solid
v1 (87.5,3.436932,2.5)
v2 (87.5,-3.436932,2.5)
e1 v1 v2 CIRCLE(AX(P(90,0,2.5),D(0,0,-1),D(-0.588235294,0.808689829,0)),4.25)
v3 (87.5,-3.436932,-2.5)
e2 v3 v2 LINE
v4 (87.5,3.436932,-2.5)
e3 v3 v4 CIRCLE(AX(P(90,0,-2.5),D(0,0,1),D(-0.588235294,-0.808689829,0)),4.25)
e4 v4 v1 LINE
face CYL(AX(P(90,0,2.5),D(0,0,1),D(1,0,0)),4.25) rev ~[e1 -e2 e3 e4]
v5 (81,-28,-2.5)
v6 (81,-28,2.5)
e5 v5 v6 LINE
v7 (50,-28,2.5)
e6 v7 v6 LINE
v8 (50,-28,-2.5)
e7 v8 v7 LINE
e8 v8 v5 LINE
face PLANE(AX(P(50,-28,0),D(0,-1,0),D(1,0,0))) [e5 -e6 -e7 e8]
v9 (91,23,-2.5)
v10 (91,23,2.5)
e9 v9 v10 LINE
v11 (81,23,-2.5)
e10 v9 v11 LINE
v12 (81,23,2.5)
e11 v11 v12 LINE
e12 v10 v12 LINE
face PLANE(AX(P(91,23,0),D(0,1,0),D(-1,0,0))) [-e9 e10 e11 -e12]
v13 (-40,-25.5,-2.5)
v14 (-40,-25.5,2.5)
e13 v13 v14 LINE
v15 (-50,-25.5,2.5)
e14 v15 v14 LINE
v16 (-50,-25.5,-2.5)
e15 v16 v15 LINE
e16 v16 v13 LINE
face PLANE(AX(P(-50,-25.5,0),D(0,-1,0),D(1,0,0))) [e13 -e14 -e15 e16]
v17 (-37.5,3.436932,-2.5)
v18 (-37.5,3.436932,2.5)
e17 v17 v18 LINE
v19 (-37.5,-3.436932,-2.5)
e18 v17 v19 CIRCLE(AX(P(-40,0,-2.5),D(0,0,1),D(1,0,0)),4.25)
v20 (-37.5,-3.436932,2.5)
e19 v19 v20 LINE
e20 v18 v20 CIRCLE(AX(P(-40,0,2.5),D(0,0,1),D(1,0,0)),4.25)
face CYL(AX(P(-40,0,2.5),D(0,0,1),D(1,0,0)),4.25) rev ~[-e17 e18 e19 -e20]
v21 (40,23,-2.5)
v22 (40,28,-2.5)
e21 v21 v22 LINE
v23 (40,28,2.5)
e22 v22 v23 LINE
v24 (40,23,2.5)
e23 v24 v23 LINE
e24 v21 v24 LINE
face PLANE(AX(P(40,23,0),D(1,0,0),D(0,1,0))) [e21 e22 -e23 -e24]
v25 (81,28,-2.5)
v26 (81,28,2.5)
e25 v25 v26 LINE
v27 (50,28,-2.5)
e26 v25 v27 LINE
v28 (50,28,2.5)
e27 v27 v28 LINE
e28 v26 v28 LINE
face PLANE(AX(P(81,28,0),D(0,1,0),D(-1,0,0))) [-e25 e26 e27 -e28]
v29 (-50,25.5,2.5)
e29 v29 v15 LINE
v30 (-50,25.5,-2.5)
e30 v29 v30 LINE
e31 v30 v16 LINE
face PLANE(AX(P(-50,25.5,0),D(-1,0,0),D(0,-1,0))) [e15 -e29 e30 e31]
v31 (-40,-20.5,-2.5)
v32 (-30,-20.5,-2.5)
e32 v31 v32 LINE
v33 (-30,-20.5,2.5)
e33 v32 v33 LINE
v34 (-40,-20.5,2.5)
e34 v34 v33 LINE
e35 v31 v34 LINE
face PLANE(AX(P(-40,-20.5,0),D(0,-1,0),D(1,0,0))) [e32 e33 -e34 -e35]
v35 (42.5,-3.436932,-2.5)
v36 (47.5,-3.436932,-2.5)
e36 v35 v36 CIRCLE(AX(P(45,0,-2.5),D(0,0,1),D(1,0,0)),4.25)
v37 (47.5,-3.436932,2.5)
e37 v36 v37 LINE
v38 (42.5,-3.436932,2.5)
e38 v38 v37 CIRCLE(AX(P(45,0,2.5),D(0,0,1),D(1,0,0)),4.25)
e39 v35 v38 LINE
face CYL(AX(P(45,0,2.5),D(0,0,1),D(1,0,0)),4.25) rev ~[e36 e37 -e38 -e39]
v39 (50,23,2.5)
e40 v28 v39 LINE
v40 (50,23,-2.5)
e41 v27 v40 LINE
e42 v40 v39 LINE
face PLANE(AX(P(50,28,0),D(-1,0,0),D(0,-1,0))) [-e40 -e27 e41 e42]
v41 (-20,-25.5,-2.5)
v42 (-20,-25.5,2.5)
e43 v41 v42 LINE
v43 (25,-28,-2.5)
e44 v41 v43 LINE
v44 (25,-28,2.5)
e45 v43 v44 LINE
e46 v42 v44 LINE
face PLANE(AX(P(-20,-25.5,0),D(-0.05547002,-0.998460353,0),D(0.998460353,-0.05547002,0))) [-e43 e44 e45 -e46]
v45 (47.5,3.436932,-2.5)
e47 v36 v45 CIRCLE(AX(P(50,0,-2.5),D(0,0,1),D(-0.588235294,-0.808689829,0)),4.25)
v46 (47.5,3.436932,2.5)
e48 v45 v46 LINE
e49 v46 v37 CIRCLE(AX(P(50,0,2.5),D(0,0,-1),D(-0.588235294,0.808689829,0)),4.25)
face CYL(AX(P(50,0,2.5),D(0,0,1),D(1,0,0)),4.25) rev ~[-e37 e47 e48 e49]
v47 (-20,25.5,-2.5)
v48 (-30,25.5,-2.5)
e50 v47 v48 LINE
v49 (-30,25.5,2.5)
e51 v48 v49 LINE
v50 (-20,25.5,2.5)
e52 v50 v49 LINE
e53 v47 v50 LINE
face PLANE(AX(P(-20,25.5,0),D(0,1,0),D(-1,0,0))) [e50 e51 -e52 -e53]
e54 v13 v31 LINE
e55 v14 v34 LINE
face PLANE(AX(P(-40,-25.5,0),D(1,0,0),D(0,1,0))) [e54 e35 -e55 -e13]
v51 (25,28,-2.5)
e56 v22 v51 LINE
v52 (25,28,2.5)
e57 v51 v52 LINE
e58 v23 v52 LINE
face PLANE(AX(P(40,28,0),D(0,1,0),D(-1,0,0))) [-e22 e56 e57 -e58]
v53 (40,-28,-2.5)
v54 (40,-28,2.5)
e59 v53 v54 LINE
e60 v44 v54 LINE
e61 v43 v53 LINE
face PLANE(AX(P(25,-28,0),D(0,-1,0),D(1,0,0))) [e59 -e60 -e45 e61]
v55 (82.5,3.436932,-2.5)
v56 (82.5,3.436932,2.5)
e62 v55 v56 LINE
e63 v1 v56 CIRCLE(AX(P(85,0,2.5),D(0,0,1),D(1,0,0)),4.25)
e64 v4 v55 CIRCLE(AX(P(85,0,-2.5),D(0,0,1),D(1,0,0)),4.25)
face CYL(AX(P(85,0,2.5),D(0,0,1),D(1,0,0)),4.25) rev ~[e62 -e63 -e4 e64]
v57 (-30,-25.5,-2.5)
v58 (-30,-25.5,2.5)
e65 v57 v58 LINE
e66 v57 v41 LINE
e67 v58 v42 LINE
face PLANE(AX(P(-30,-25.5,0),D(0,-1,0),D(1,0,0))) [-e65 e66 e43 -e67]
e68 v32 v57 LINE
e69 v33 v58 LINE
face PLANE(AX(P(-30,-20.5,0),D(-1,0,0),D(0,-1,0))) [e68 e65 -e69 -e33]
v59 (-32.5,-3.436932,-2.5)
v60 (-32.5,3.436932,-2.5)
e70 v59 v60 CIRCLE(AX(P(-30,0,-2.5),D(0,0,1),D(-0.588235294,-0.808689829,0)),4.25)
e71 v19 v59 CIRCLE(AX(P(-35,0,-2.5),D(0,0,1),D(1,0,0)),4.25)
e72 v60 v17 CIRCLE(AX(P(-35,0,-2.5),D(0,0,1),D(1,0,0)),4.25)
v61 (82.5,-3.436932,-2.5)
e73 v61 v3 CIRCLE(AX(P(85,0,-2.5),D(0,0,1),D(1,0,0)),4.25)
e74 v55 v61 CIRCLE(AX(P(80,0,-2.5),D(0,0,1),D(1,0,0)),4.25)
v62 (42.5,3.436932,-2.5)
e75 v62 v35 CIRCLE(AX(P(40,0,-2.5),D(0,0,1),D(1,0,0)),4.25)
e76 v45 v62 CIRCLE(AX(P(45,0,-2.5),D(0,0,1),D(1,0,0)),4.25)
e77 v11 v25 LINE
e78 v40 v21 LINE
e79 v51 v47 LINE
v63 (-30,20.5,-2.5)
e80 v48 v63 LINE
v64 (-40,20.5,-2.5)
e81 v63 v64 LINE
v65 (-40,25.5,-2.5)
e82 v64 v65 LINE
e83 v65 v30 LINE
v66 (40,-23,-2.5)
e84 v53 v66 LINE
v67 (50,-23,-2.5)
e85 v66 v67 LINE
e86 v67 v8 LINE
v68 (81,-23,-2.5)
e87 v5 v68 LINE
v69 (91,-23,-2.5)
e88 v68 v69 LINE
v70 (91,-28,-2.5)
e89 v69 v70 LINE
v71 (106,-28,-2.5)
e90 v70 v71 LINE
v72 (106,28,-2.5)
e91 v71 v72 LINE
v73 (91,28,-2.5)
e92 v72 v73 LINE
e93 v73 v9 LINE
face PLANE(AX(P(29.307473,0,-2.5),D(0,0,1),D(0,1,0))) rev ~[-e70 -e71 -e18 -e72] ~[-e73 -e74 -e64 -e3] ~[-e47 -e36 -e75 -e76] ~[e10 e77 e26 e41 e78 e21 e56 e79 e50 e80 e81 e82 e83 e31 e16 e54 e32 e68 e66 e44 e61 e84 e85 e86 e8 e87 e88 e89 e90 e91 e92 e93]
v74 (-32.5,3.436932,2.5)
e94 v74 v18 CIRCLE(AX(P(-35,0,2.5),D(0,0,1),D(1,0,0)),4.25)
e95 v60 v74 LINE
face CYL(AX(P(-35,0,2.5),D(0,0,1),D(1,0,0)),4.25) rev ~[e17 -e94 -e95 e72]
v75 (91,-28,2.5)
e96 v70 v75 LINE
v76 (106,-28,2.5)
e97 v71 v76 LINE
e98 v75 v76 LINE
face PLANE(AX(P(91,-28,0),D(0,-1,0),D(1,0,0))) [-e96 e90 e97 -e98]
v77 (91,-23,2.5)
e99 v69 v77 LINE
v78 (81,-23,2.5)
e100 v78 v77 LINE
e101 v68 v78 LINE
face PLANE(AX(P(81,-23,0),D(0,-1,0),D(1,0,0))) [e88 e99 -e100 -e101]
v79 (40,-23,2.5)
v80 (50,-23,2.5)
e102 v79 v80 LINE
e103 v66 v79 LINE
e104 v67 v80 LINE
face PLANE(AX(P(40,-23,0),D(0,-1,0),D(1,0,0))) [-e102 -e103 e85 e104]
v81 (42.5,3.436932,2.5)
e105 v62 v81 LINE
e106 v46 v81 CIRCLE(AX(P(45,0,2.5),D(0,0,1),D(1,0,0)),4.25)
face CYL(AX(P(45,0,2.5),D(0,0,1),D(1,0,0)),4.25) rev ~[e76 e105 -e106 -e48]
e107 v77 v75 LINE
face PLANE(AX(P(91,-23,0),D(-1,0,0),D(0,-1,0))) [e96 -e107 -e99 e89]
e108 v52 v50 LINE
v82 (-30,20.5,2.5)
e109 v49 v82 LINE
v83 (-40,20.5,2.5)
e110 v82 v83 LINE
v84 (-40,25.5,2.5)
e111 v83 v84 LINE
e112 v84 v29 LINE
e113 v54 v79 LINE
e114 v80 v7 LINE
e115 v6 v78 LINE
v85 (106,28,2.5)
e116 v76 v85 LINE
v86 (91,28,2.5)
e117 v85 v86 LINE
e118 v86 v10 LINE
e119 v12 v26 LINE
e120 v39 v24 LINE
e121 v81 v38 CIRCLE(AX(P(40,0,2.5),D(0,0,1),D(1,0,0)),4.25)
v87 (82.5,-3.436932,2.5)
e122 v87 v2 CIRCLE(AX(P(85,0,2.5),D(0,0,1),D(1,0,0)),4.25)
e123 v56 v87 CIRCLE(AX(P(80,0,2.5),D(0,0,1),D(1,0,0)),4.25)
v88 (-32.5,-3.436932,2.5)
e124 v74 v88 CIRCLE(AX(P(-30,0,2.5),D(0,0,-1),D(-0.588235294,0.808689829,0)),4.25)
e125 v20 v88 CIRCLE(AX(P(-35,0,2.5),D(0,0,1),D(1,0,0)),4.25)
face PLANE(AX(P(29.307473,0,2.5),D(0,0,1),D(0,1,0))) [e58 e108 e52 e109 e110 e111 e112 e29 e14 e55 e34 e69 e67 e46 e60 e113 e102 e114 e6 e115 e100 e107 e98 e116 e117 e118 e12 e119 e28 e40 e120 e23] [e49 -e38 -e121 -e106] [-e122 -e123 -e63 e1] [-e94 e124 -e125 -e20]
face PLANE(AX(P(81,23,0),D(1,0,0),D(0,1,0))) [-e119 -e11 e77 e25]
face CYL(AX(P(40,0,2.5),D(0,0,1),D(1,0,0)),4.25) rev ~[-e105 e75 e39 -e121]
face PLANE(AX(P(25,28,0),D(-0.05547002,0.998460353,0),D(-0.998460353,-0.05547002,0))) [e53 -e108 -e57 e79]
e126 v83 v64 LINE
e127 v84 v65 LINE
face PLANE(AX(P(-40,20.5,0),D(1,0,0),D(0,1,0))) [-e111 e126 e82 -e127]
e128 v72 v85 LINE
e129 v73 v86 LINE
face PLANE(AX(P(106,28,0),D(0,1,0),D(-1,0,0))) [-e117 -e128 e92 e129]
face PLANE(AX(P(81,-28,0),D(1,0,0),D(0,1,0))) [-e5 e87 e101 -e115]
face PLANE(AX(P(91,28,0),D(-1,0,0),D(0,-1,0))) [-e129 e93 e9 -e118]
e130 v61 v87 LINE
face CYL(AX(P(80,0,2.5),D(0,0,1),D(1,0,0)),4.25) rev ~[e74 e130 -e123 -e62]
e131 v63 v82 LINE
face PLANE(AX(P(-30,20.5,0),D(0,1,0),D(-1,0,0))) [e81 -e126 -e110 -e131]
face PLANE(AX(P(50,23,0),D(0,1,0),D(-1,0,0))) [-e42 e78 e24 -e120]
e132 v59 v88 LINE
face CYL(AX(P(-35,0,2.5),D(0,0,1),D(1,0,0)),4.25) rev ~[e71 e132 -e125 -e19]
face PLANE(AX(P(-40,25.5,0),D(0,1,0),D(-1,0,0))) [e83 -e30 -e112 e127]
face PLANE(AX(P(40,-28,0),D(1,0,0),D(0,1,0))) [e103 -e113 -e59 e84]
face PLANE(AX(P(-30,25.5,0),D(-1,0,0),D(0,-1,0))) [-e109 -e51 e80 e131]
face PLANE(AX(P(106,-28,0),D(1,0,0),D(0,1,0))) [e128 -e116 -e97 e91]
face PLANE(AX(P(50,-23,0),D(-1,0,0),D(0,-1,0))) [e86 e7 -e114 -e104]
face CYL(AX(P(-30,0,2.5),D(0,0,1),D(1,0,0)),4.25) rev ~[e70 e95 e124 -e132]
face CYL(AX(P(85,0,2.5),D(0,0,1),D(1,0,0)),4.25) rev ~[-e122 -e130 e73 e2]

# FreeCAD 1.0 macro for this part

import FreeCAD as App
import Part
import Sketcher


def add_polygon(sketch, points):
    """Adds a closed chain of lines whose ends are joined by coincident constraints."""
    first, n = sketch.GeometryCount, len(points)
    for a, b in zip(points, points[1:] + points[:1]):
        sketch.addGeometry(Part.LineSegment(App.Vector(*a, 0), App.Vector(*b, 0)), False)
    for i in range(n):
        sketch.addConstraint(Sketcher.Constraint("Coincident", first + i, 2, first + (i + 1) % n, 1))

doc = App.newDocument("Part")
params = doc.addObject("Spreadsheet::Sheet", "Params")
for row, (alias, value) in enumerate([
    ("sketch1_width", "10 mm"),
    ("sketch1_width2", "15 mm"),
    ("sketch1_width3", "31 mm"),
    ("sketch1_height", "51 mm"),
    ("sketch1_height2", "5 mm"),
    ("pad1_length", "5 mm"),
    ("sketch2_diameter", "8.5 mm"),
    ("sketch3_diameter", "8.5 mm"),
    ("sketch4_diameter", "8.5 mm"),
    ("sketch5_diameter", "8.5 mm"),
    ("sketch6_diameter", "8.5 mm"),
    ("sketch7_diameter", "8.5 mm"),
    ("sketch8_diameter", "8.5 mm"),
    ("sketch9_diameter", "8.5 mm"),
    ("sketch10_diameter", "8.5 mm"),
], start=1):
    params.set(f"A{row}", alias)
    params.set(f"B{row}", "=" + value)
    params.setAlias(f"B{row}", alias)

body = doc.addObject("PartDesign::Body", "Body")

# Sketch on XY plane
sketch1 = body.newObject("Sketcher::SketchObject", "Sketch")
sketch1.AttachmentSupport = (doc.getObject("XY_Plane"), [""])
sketch1.MapMode = "FlatFace"
add_polygon(sketch1, [(-50, 25.5), (-50, -25.5), (-40, -25.5), (-40, -20.5), (-30, -20.5), (-30, -25.5), (-20, -25.5), (25, -28), (40, -28), (40, -23), (50, -23), (50, -28), (81, -28), (81, -23), (91, -23), (91, -28), (106, -28), (106, 28), (91, 28), (91, 23), (81, 23), (81, 28), (50, 28), (50, 23), (40, 23), (40, 28), (25, 28), (-20, 25.5), (-30, 25.5), (-30, 20.5), (-40, 20.5), (-40, 25.5)])  # lines 0-31
sketch1.addConstraint([
    Sketcher.Constraint("Vertical", 0),
    Sketcher.Constraint("Horizontal", 1),
    Sketcher.Constraint("Vertical", 2),
    Sketcher.Constraint("Horizontal", 3),
    Sketcher.Constraint("Vertical", 4),
    Sketcher.Constraint("Horizontal", 5),
    Sketcher.Constraint("Horizontal", 7),
    Sketcher.Constraint("Vertical", 8),
    Sketcher.Constraint("Horizontal", 9),
    Sketcher.Constraint("Vertical", 10),
    Sketcher.Constraint("Horizontal", 11),
    Sketcher.Constraint("Vertical", 12),
    Sketcher.Constraint("Horizontal", 13),
    Sketcher.Constraint("Vertical", 14),
    Sketcher.Constraint("Horizontal", 15),
    Sketcher.Constraint("Vertical", 16),
    Sketcher.Constraint("Horizontal", 17),
    Sketcher.Constraint("Vertical", 18),
    Sketcher.Constraint("Horizontal", 19),
    Sketcher.Constraint("Vertical", 20),
    Sketcher.Constraint("Horizontal", 21),
    Sketcher.Constraint("Vertical", 22),
    Sketcher.Constraint("Horizontal", 23),
    Sketcher.Constraint("Vertical", 24),
    Sketcher.Constraint("Horizontal", 25),
    Sketcher.Constraint("Horizontal", 27),
    Sketcher.Constraint("Vertical", 28),
    Sketcher.Constraint("Horizontal", 29),
    Sketcher.Constraint("Vertical", 30),
    Sketcher.Constraint("Horizontal", 31),
    Sketcher.Constraint("Symmetric", 14, 2, 17, 2, -1),
    Sketcher.Constraint("Symmetric", 12, 2, 19, 2, -1),
    Sketcher.Constraint("Symmetric", 10, 2, 21, 2, -1),
    Sketcher.Constraint("Symmetric", 8, 2, 23, 2, -1),
    Sketcher.Constraint("Symmetric", 6, 2, 25, 2, -1),
    Sketcher.Constraint("Symmetric", 5, 2, 26, 2, -1),
    Sketcher.Constraint("Symmetric", 3, 2, 28, 2, -1),
    Sketcher.Constraint("Symmetric", 1, 2, 30, 2, -1),
    Sketcher.Constraint("Horizontal", 1, 2, 4, 2),
    Sketcher.Constraint("Horizontal", 7, 2, 10, 2),
    Sketcher.Constraint("Horizontal", 9, 2, 12, 2),
    Sketcher.Constraint("Horizontal", 11, 2, 14, 2),
    Sketcher.Constraint("Equal", 1, 3),
    Sketcher.Constraint("Equal", 3, 5),
    Sketcher.Constraint("Equal", 5, 9),
    Sketcher.Constraint("Equal", 9, 13),
    Sketcher.Constraint("Equal", 7, 15),
    Sketcher.Constraint("Equal", 4, 8),
    Sketcher.Constraint("DistanceX", 1, 1, 1, 2, 10.0),
    Sketcher.Constraint("DistanceX", 7, 1, 7, 2, 15.0),
    Sketcher.Constraint("DistanceX", 11, 1, 11, 2, 31.0),
    Sketcher.Constraint("DistanceY", 0, 2, 0, 1, 51.0),
    Sketcher.Constraint("DistanceY", 2, 1, 2, 2, 5.0),
    Sketcher.Constraint("DistanceY", 16, 1, 16, 2, 56.0),
    Sketcher.Constraint("DistanceX", 0, 2, -1, 1, 50.0),
    Sketcher.Constraint("DistanceX", -1, 1, 6, 2, 25.0),
])
sketch1.setExpression("Constraints[80]", "Params.sketch1_width")
sketch1.setExpression("Constraints[81]", "Params.sketch1_width2")
sketch1.setExpression("Constraints[82]", "Params.sketch1_width3")
sketch1.setExpression("Constraints[83]", "Params.sketch1_height")
sketch1.setExpression("Constraints[84]", "Params.sketch1_height2")
pad1 = body.newObject("PartDesign::Pad", "Pad")
pad1.Profile = sketch1
pad1.setExpression("Length", "Params.pad1_length")
pad1.Midplane = True

# Sketch on XY plane
sketch2 = body.newObject("Sketcher::SketchObject", "Sketch001")
sketch2.AttachmentSupport = (doc.getObject("XY_Plane"), [""])
sketch2.MapMode = "FlatFace"
sketch2.AttachmentOffset = App.Placement(App.Vector(0, 0, 2.5), App.Rotation())
sketch2.addGeometry(Part.Circle(App.Vector(-35, 0, 0), App.Vector(0, 0, 1), 4.25), False)
sketch2.addConstraint([
    Sketcher.Constraint("PointOnObject", 0, 3, -1),
    Sketcher.Constraint("Diameter", 0, 8.5),
    Sketcher.Constraint("DistanceX", 0, 3, -1, 1, 35.0),
])
sketch2.setExpression("Constraints[1]", "Params.sketch2_diameter")
pocket1 = body.newObject("PartDesign::Pocket", "Pocket")
pocket1.Profile = sketch2
pocket1.Type = "UpToFirst"

# Sketch on XY plane
sketch3 = body.newObject("Sketcher::SketchObject", "Sketch002")
sketch3.AttachmentSupport = (doc.getObject("XY_Plane"), [""])
sketch3.MapMode = "FlatFace"
sketch3.AttachmentOffset = App.Placement(App.Vector(0, 0, 2.5), App.Rotation())
sketch3.addGeometry(Part.Circle(App.Vector(45, 0, 0), App.Vector(0, 0, 1), 4.25), False)
sketch3.addConstraint([
    Sketcher.Constraint("PointOnObject", 0, 3, -1),
    Sketcher.Constraint("Diameter", 0, 8.5),
    Sketcher.Constraint("DistanceX", -1, 1, 0, 3, 45.0),
])
sketch3.setExpression("Constraints[1]", "Params.sketch3_diameter")
pocket2 = body.newObject("PartDesign::Pocket", "Pocket001")
pocket2.Profile = sketch3
pocket2.Type = "UpToFirst"

# Sketch on XY plane
sketch4 = body.newObject("Sketcher::SketchObject", "Sketch003")
sketch4.AttachmentSupport = (doc.getObject("XY_Plane"), [""])
sketch4.MapMode = "FlatFace"
sketch4.AttachmentOffset = App.Placement(App.Vector(0, 0, 2.5), App.Rotation())
sketch4.addGeometry(Part.Circle(App.Vector(85, 0, 0), App.Vector(0, 0, 1), 4.25), False)
sketch4.addConstraint([
    Sketcher.Constraint("PointOnObject", 0, 3, -1),
    Sketcher.Constraint("Diameter", 0, 8.5),
    Sketcher.Constraint("DistanceX", -1, 1, 0, 3, 85.0),
])
sketch4.setExpression("Constraints[1]", "Params.sketch4_diameter")
pocket3 = body.newObject("PartDesign::Pocket", "Pocket002")
pocket3.Profile = sketch4
pocket3.Type = "UpToFirst"

# Sketch on XY plane
sketch5 = body.newObject("Sketcher::SketchObject", "Sketch004")
sketch5.AttachmentSupport = (doc.getObject("XY_Plane"), [""])
sketch5.MapMode = "FlatFace"
sketch5.AttachmentOffset = App.Placement(App.Vector(0, 0, 2.5), App.Rotation())
sketch5.addGeometry(Part.Circle(App.Vector(90, 0, 0), App.Vector(0, 0, 1), 4.25), False)
sketch5.addConstraint([
    Sketcher.Constraint("PointOnObject", 0, 3, -1),
    Sketcher.Constraint("Diameter", 0, 8.5),
    Sketcher.Constraint("DistanceX", -1, 1, 0, 3, 90.0),
])
sketch5.setExpression("Constraints[1]", "Params.sketch5_diameter")
pocket4 = body.newObject("PartDesign::Pocket", "Pocket003")
pocket4.Profile = sketch5
pocket4.Type = "UpToFirst"

# Sketch on XY plane
sketch6 = body.newObject("Sketcher::SketchObject", "Sketch005")
sketch6.AttachmentSupport = (doc.getObject("XY_Plane"), [""])
sketch6.MapMode = "FlatFace"
sketch6.AttachmentOffset = App.Placement(App.Vector(0, 0, 2.5), App.Rotation())
sketch6.addGeometry(Part.Circle(App.Vector(50, 0, 0), App.Vector(0, 0, 1), 4.25), False)
sketch6.addConstraint([
    Sketcher.Constraint("PointOnObject", 0, 3, -1),
    Sketcher.Constraint("Diameter", 0, 8.5),
    Sketcher.Constraint("DistanceX", -1, 1, 0, 3, 50.0),
])
sketch6.setExpression("Constraints[1]", "Params.sketch6_diameter")
pocket5 = body.newObject("PartDesign::Pocket", "Pocket004")
pocket5.Profile = sketch6
pocket5.Type = "UpToFirst"

# Sketch on XY plane
sketch7 = body.newObject("Sketcher::SketchObject", "Sketch006")
sketch7.AttachmentSupport = (doc.getObject("XY_Plane"), [""])
sketch7.MapMode = "FlatFace"
sketch7.AttachmentOffset = App.Placement(App.Vector(0, 0, 2.5), App.Rotation())
sketch7.addGeometry(Part.Circle(App.Vector(-30, 0, 0), App.Vector(0, 0, 1), 4.25), False)
sketch7.addConstraint([
    Sketcher.Constraint("PointOnObject", 0, 3, -1),
    Sketcher.Constraint("Diameter", 0, 8.5),
    Sketcher.Constraint("DistanceX", 0, 3, -1, 1, 30.0),
])
sketch7.setExpression("Constraints[1]", "Params.sketch7_diameter")
pocket6 = body.newObject("PartDesign::Pocket", "Pocket005")
pocket6.Profile = sketch7
pocket6.Type = "UpToFirst"

# Sketch on XY plane
sketch8 = body.newObject("Sketcher::SketchObject", "Sketch007")
sketch8.AttachmentSupport = (doc.getObject("XY_Plane"), [""])
sketch8.MapMode = "FlatFace"
sketch8.AttachmentOffset = App.Placement(App.Vector(0, 0, 2.5), App.Rotation())
sketch8.addGeometry(Part.Circle(App.Vector(80, 0, 0), App.Vector(0, 0, 1), 4.25), False)
sketch8.addConstraint([
    Sketcher.Constraint("PointOnObject", 0, 3, -1),
    Sketcher.Constraint("Diameter", 0, 8.5),
    Sketcher.Constraint("DistanceX", -1, 1, 0, 3, 80.0),
])
sketch8.setExpression("Constraints[1]", "Params.sketch8_diameter")
pocket7 = body.newObject("PartDesign::Pocket", "Pocket006")
pocket7.Profile = sketch8
pocket7.Type = "UpToFirst"

# Sketch on XY plane
sketch9 = body.newObject("Sketcher::SketchObject", "Sketch008")
sketch9.AttachmentSupport = (doc.getObject("XY_Plane"), [""])
sketch9.MapMode = "FlatFace"
sketch9.AttachmentOffset = App.Placement(App.Vector(0, 0, 2.5), App.Rotation())
sketch9.addGeometry(Part.Circle(App.Vector(40, 0, 0), App.Vector(0, 0, 1), 4.25), False)
sketch9.addConstraint([
    Sketcher.Constraint("PointOnObject", 0, 3, -1),
    Sketcher.Constraint("Diameter", 0, 8.5),
    Sketcher.Constraint("DistanceX", -1, 1, 0, 3, 40.0),
])
sketch9.setExpression("Constraints[1]", "Params.sketch9_diameter")
pocket8 = body.newObject("PartDesign::Pocket", "Pocket007")
pocket8.Profile = sketch9
pocket8.Type = "UpToFirst"

# Sketch on XY plane
sketch10 = body.newObject("Sketcher::SketchObject", "Sketch009")
sketch10.AttachmentSupport = (doc.getObject("XY_Plane"), [""])
sketch10.MapMode = "FlatFace"
sketch10.AttachmentOffset = App.Placement(App.Vector(0, 0, 2.5), App.Rotation())
sketch10.addGeometry(Part.Circle(App.Vector(-40, 0, 0), App.Vector(0, 0, 1), 4.25), False)
sketch10.addConstraint([
    Sketcher.Constraint("PointOnObject", 0, 3, -1),
    Sketcher.Constraint("Diameter", 0, 8.5),
    Sketcher.Constraint("DistanceX", 0, 3, -1, 1, 40.0),
])
sketch10.setExpression("Constraints[1]", "Params.sketch10_diameter")
pocket9 = body.newObject("PartDesign::Pocket", "Pocket008")
pocket9.Profile = sketch10
pocket9.Type = "UpToFirst"

doc.recompute()
